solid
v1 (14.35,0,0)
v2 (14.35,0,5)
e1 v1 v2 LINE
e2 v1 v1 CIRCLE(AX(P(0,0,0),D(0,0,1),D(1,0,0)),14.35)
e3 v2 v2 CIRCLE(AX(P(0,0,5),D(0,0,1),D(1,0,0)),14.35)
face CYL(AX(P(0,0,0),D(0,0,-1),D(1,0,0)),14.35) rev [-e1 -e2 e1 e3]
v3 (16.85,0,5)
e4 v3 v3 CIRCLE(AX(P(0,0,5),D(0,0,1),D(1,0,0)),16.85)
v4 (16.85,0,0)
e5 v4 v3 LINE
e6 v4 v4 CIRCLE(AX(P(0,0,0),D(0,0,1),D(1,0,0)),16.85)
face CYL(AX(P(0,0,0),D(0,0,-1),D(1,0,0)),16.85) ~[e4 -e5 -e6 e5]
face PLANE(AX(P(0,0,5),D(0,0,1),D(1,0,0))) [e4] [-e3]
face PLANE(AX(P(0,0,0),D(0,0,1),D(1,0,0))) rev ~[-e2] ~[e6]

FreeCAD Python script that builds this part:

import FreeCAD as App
import Part
import Sketcher

doc = App.newDocument("Part")
body = doc.addObject("PartDesign::Body", "Body")

sketch1 = body.newObject("Sketcher::SketchObject", "Sketch")
sketch1.AttachmentSupport = (doc.getObject("XY_Plane"), [""])
sketch1.MapMode = "FlatFace"
sketch1.addGeometry([
    Part.Circle(App.Vector(0, 0, 0), App.Vector(0, 0, 1), 17),
    Part.Circle(App.Vector(0, 0, 0), App.Vector(0, 0, 1), 14),
], False)
sketch1.addConstraint([
    Sketcher.Constraint("Coincident", 0, 3, -1, 1),
    Sketcher.Constraint("Coincident", 1, 3, -1, 1),
    Sketcher.Constraint("Diameter", 0, 33.7),
    Sketcher.Constraint("Diameter", 1, 28.7),
])
pad1 = body.newObject("PartDesign::Pad", "Pad")
pad1.Profile = sketch1
pad1.Length = 5

doc.recompute()
